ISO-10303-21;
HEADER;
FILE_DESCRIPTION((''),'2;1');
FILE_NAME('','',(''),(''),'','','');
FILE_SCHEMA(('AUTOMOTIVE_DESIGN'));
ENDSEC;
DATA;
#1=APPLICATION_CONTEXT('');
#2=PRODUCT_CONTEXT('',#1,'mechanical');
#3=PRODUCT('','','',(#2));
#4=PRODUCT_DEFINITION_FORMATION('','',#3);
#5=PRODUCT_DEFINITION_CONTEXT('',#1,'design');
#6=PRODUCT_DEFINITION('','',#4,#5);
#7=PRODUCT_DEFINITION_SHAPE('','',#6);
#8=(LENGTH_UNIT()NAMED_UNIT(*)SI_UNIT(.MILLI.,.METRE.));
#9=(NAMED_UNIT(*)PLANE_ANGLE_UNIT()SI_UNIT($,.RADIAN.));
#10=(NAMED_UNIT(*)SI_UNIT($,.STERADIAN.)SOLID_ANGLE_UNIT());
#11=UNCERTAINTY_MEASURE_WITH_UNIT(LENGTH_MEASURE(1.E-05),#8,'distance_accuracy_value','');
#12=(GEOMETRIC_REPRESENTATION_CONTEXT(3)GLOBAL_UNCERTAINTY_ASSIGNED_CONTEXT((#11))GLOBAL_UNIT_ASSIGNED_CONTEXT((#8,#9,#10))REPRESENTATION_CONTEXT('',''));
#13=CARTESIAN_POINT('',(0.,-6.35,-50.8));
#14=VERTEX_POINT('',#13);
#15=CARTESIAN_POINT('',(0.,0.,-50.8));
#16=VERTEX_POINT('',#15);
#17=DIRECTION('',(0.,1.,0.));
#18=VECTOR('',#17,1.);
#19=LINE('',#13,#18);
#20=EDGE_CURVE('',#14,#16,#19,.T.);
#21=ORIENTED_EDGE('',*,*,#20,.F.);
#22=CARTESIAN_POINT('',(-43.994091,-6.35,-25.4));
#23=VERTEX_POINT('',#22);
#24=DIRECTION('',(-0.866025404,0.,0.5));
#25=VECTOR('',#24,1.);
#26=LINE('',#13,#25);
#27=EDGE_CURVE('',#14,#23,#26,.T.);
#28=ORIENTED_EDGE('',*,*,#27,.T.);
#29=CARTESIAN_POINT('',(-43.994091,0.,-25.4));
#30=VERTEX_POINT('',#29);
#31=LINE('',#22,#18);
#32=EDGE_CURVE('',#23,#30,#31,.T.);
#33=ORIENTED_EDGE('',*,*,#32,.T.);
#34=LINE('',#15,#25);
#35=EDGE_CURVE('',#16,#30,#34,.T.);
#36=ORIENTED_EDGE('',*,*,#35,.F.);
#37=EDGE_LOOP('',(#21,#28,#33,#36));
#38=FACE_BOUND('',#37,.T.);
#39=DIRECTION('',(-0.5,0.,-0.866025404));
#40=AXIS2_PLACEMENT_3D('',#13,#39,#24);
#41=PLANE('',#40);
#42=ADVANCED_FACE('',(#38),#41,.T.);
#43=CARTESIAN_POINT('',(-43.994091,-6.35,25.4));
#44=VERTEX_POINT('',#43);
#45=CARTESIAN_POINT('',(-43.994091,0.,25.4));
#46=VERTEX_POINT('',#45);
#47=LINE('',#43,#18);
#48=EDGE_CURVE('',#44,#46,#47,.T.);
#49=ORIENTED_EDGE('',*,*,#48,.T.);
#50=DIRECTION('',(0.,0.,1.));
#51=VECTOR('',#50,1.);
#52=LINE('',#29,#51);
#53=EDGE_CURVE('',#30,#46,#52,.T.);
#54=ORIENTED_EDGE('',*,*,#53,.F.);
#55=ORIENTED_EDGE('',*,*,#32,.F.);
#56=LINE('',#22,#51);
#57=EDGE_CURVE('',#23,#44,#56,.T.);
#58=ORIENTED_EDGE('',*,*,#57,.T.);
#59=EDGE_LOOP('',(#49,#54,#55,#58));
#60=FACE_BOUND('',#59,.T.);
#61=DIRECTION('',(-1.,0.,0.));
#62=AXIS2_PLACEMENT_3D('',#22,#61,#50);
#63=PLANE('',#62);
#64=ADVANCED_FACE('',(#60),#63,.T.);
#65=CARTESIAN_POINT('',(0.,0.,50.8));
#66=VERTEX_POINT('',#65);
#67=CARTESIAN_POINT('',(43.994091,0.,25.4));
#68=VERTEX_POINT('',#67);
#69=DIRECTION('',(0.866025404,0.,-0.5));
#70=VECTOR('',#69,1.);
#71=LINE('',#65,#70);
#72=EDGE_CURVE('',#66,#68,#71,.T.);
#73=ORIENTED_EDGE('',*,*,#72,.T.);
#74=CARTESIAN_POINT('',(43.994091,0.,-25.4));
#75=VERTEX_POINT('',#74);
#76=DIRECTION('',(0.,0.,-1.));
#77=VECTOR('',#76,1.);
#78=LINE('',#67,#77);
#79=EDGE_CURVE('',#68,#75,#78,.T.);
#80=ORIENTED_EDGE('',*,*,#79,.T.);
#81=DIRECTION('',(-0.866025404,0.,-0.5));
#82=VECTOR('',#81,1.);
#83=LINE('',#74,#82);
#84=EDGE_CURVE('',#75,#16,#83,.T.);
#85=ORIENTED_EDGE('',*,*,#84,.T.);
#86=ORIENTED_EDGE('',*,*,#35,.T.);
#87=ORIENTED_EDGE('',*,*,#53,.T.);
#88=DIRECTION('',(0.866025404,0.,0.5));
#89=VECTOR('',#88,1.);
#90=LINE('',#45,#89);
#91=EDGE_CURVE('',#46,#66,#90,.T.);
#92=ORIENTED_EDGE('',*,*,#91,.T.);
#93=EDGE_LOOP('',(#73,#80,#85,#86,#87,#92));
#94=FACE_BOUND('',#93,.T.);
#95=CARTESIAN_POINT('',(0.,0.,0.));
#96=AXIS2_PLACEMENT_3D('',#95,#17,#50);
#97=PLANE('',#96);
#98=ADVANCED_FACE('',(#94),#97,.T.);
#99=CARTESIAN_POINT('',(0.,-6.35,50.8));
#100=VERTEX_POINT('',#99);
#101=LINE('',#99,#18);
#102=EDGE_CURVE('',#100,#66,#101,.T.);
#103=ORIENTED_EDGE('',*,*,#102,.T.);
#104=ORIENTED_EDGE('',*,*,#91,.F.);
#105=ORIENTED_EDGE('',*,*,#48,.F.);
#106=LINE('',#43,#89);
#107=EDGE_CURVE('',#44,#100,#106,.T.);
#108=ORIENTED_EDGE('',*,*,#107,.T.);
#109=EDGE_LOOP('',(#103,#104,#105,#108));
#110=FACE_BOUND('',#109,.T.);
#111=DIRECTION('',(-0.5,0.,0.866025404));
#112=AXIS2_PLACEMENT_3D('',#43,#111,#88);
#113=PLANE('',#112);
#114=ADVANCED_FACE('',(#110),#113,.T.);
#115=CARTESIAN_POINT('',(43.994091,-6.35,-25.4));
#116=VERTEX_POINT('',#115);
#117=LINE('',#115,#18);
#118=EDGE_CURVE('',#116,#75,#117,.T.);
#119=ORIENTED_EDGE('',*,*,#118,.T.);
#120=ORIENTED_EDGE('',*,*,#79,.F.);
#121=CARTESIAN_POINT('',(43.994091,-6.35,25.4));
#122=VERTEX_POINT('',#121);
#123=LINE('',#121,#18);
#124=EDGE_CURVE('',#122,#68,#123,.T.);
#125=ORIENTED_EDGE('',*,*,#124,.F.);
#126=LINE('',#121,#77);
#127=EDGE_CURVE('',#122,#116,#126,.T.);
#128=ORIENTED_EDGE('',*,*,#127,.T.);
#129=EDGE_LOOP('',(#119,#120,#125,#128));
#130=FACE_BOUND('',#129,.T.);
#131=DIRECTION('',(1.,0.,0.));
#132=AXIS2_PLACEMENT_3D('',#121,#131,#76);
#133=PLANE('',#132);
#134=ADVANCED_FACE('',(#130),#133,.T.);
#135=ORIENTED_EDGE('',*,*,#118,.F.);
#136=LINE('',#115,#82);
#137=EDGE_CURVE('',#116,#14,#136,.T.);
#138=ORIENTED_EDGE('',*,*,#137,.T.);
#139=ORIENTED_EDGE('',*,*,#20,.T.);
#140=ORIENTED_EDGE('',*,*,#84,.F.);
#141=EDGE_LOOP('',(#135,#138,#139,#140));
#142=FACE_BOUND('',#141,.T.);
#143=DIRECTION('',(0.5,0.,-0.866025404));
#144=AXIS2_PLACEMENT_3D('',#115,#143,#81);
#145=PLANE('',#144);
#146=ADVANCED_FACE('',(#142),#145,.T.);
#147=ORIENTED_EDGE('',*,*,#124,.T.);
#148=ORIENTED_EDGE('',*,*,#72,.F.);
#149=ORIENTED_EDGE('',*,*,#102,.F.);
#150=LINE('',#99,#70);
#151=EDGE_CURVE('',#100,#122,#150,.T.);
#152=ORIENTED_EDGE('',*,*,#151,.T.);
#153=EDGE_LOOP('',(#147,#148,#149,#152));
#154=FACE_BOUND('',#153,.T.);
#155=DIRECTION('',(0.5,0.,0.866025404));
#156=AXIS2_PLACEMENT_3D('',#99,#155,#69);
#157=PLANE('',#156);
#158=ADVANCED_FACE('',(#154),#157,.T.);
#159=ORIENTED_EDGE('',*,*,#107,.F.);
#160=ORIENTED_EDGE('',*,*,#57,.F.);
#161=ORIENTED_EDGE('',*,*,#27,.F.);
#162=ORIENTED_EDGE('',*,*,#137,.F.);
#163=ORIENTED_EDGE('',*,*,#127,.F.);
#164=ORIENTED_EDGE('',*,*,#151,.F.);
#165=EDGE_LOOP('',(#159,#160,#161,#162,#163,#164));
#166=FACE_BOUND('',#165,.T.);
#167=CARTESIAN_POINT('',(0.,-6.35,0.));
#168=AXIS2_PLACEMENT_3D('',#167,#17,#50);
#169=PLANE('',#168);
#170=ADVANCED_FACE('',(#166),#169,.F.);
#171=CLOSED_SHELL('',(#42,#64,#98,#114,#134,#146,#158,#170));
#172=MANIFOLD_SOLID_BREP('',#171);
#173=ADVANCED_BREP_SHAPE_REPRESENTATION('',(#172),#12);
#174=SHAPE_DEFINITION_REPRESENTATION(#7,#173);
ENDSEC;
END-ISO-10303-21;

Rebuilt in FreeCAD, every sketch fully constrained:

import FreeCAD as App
import Part
import Sketcher

V = App.Vector
Q = App.Units.Quantity

doc = App.newDocument("Part")
params = doc.addObject("Spreadsheet::Sheet", "Params")
for row, (alias, value) in enumerate([
    ("sketch1_height", "2 in"),
    ("sketch1_length", "2 in"),
    ("pad1_length", "0.25 in"),
], start=1):
    params.set(f"A{row}", alias)
    params.set(f"B{row}", "=" + value)
    params.setAlias(f"B{row}", alias)

body = doc.addObject("PartDesign::Body", "Body")

# Sketch on XZ plane
sketch1 = doc.addObject("Sketcher::SketchObject", "Sketch")
body.addObject(sketch1)
sketch1.AttachmentSupport = (doc.XZ_Plane, [""])
sketch1.MapMode = "FlatFace"
sketch1.addGeometry(Part.LineSegment(V(43.994091, -25.4, 0), V(0, -50.8, 0)), False)
sketch1.addGeometry(Part.LineSegment(V(0, -50.8, 0), V(-43.994091, -25.4, 0)), False)
sketch1.addGeometry(Part.LineSegment(V(-43.994091, -25.4, 0), V(-43.994091, 25.4, 0)), False)
sketch1.addGeometry(Part.LineSegment(V(-43.994091, 25.4, 0), V(0, 50.8, 0)), False)
sketch1.addGeometry(Part.LineSegment(V(0, 50.8, 0), V(43.994091, 25.4, 0)), False)
sketch1.addGeometry(Part.LineSegment(V(43.994091, 25.4, 0), V(43.994091, -25.4, 0)), False)
sketch1.addConstraint(Sketcher.Constraint("Coincident", 0, 2, 1, 1))
sketch1.addConstraint(Sketcher.Constraint("Coincident", 1, 2, 2, 1))
sketch1.addConstraint(Sketcher.Constraint("Coincident", 2, 2, 3, 1))
sketch1.addConstraint(Sketcher.Constraint("Coincident", 3, 2, 4, 1))
sketch1.addConstraint(Sketcher.Constraint("Coincident", 4, 2, 5, 1))
sketch1.addConstraint(Sketcher.Constraint("Coincident", 5, 2, 0, 1))
sketch1.addConstraint(Sketcher.Constraint("Vertical", 2))
sketch1.addConstraint(Sketcher.Constraint("Vertical", 5))
sketch1.addConstraint(Sketcher.Constraint("Symmetric", 0, 2, 3, 2, -1, 1))
sketch1.addConstraint(Sketcher.Constraint("Symmetric", 1, 2, 4, 2, -1, 1))
sketch1.addConstraint(Sketcher.Constraint("PointOnObject", 0, 2, -2))
sketch1.addConstraint(Sketcher.Constraint("Parallel", 0, 3))
sketch1.addConstraint(Sketcher.Constraint("Horizontal", 2, 2, 4, 2))
sketch1.addConstraint(Sketcher.Constraint("DistanceY", 2, 1, 2, 2, Q("2 in")))
sketch1.addConstraint(Sketcher.Constraint("Distance", 0, Q("2 in")))
sketch1.addConstraint(Sketcher.Constraint("DistanceY", 0, 2, -1, 1, Q("2 in")))
sketch1.setExpression("Constraints[13]", "Params.sketch1_height")
sketch1.setExpression("Constraints[14]", "Params.sketch1_length")
pad1 = doc.addObject("PartDesign::Pad", "Pad")
body.addObject(pad1)
pad1.Profile = sketch1
pad1.setExpression("Length", "Params.pad1_length")

doc.recompute()
